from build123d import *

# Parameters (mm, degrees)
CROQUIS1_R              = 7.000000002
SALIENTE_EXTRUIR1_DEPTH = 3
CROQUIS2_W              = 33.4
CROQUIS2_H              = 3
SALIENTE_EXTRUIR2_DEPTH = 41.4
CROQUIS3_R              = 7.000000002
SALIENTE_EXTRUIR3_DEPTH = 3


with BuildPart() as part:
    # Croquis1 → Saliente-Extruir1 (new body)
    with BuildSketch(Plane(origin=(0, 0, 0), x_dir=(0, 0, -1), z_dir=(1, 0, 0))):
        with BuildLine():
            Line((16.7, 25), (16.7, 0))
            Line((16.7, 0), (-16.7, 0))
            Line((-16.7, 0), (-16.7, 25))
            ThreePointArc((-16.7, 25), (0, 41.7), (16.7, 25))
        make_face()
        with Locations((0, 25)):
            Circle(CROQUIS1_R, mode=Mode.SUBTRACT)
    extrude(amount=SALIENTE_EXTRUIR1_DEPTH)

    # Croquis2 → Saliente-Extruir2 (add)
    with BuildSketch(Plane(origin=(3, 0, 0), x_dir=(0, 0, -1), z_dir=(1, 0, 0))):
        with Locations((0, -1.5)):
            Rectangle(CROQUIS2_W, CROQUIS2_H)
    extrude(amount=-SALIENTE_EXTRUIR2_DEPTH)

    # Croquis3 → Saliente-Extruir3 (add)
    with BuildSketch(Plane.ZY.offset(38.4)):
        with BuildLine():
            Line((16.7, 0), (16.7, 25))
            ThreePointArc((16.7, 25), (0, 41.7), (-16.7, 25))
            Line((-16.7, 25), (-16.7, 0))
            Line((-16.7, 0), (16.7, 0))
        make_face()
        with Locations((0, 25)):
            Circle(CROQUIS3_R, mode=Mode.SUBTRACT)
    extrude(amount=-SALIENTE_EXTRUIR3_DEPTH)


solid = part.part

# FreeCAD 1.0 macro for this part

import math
import FreeCAD as App
import Part
import Sketcher
Q = App.Units.Quantity


def add_polygon(sketch, points):
    """Adds a closed chain of lines whose ends are joined by coincident constraints."""
    first, n = sketch.GeometryCount, len(points)
    for a, b in zip(points, points[1:] + points[:1]):
        sketch.addGeometry(Part.LineSegment(App.Vector(*a, 0), App.Vector(*b, 0)), False)
    for i in range(n):
        sketch.addConstraint(Sketcher.Constraint("Coincident", first + i, 2, first + (i + 1) % n, 1))

doc = App.newDocument("Part")
params = doc.addObject("Spreadsheet::Sheet", "Params")
for row, (alias, value) in enumerate([
    ("sketch1_diameter", "14 mm"),
    ("sketch1_radius", "16.7 mm"),
    ("sketch1_width", "25 mm"),
    ("pad1_length", "3 mm"),
    ("sketch2_width", "3 mm"),
    ("sketch2_height", "33.4 mm"),
    ("pad2_length", "41.4 mm"),
    ("sketch3_diameter", "14 mm"),
    ("sketch3_radius", "16.7 mm"),
    ("sketch3_width", "25 mm"),
    ("pad3_length", "3 mm"),
], start=1):
    params.set(f"A{row}", alias)
    params.set(f"B{row}", "=" + value)
    params.setAlias(f"B{row}", alias)

body = doc.addObject("PartDesign::Body", "Body")

# Sketch on YZ plane
sketch1 = body.newObject("Sketcher::SketchObject", "Sketch")
sketch1.AttachmentSupport = (doc.getObject("YZ_Plane"), [""])
sketch1.MapMode = "FlatFace"
sketch1.addGeometry(Part.LineSegment(App.Vector(0, -16.7, 0), App.Vector(25, -16.7, 0)), False)
sketch1.addGeometry(Part.ArcOfCircle(Part.Circle(App.Vector(25, 0, 0), App.Vector(0, 0, 1), 16.7), math.radians(-90), math.radians(90)), False)
sketch1.addGeometry(Part.LineSegment(App.Vector(25, 16.7, 0), App.Vector(0, 16.7, 0)), False)
sketch1.addGeometry(Part.LineSegment(App.Vector(0, 16.7, 0), App.Vector(0, -16.7, 0)), False)
sketch1.addGeometry(Part.Circle(App.Vector(25, 0, 0), App.Vector(0, 0, 1), 7), False)
sketch1.addConstraint(Sketcher.Constraint("Tangent", 0, 2, 1, 1))
sketch1.addConstraint(Sketcher.Constraint("Tangent", 1, 2, 2, 1))
sketch1.addConstraint(Sketcher.Constraint("Coincident", 2, 2, 3, 1))
sketch1.addConstraint(Sketcher.Constraint("Coincident", 3, 2, 0, 1))
sketch1.addConstraint(Sketcher.Constraint("Horizontal", 0))
sketch1.addConstraint(Sketcher.Constraint("Horizontal", 2))
sketch1.addConstraint(Sketcher.Constraint("Vertical", 3))
sketch1.addConstraint(Sketcher.Constraint("Coincident", 4, 3, 1, 3))
sketch1.addConstraint(Sketcher.Constraint("Symmetric", 2, 2, 3, 2, -1, 1))
sketch1.addConstraint(Sketcher.Constraint("Diameter", 4, Q("14 mm")))
sketch1.addConstraint(Sketcher.Constraint("Radius", 1, Q("16.7 mm")))
sketch1.addConstraint(Sketcher.Constraint("DistanceX", 0, 1, 0, 2, Q("25 mm")))
sketch1.setExpression("Constraints[9]", "Params.sketch1_diameter")
sketch1.setExpression("Constraints[10]", "Params.sketch1_radius")
sketch1.setExpression("Constraints[11]", "Params.sketch1_width")
pad1 = body.newObject("PartDesign::Pad", "Pad")
pad1.Profile = sketch1
pad1.setExpression("Length", "Params.pad1_length")

# Sketch on YZ plane
sketch2 = body.newObject("Sketcher::SketchObject", "Sketch001")
sketch2.AttachmentSupport = (doc.getObject("YZ_Plane"), [""])
sketch2.MapMode = "FlatFace"
sketch2.AttachmentOffset = App.Placement(App.Vector(0, 0, 3), App.Rotation())
add_polygon(sketch2, [(0, 16.7), (-3, 16.7), (-3, -16.7), (0, -16.7)])  # lines 0-3
sketch2.addConstraint(Sketcher.Constraint("Horizontal", 0))
sketch2.addConstraint(Sketcher.Constraint("Vertical", 1))
sketch2.addConstraint(Sketcher.Constraint("Horizontal", 2))
sketch2.addConstraint(Sketcher.Constraint("Vertical", 3))
sketch2.addConstraint(Sketcher.Constraint("Symmetric", 2, 2, 3, 2, -1, 1))
sketch2.addConstraint(Sketcher.Constraint("DistanceX", 0, 2, 0, 1, Q("3 mm")))
sketch2.addConstraint(Sketcher.Constraint("DistanceY", 1, 2, 1, 1, Q("33.4 mm")))
sketch2.setExpression("Constraints[9]", "Params.sketch2_width")
sketch2.setExpression("Constraints[10]", "Params.sketch2_height")
pad2 = body.newObject("PartDesign::Pad", "Pad001")
pad2.Profile = sketch2
pad2.setExpression("Length", "Params.pad2_length")
pad2.Reversed = True

# Sketch on YZ plane
sketch3 = body.newObject("Sketcher::SketchObject", "Sketch002")
sketch3.AttachmentSupport = (doc.getObject("YZ_Plane"), [""])
sketch3.MapMode = "FlatFace"
sketch3.AttachmentOffset = App.Placement(App.Vector(0, 0, -38.4), App.Rotation())
sketch3.addGeometry(Part.LineSegment(App.Vector(0, 16.7, 0), App.Vector(25, 16.7, 0)), False)
sketch3.addGeometry(Part.ArcOfCircle(Part.Circle(App.Vector(25, 0, 0), App.Vector(0, 0, 1), 16.7), math.radians(-90), math.radians(90)), False)
sketch3.addGeometry(Part.LineSegment(App.Vector(25, -16.7, 0), App.Vector(0, -16.7, 0)), False)
sketch3.addGeometry(Part.LineSegment(App.Vector(0, -16.7, 0), App.Vector(0, 16.7, 0)), False)
sketch3.addGeometry(Part.Circle(App.Vector(25, 0, 0), App.Vector(0, 0, 1), 7), False)
sketch3.addConstraint(Sketcher.Constraint("Tangent", 0, 2, 1, 2))
sketch3.addConstraint(Sketcher.Constraint("Tangent", 1, 1, 2, 1))
sketch3.addConstraint(Sketcher.Constraint("Coincident", 2, 2, 3, 1))
sketch3.addConstraint(Sketcher.Constraint("Coincident", 3, 2, 0, 1))
sketch3.addConstraint(Sketcher.Constraint("Horizontal", 0))
sketch3.addConstraint(Sketcher.Constraint("Horizontal", 2))
sketch3.addConstraint(Sketcher.Constraint("Vertical", 3))
sketch3.addConstraint(Sketcher.Constraint("Coincident", 4, 3, 1, 3))
sketch3.addConstraint(Sketcher.Constraint("Symmetric", 2, 2, 3, 2, -1, 1))
sketch3.addConstraint(Sketcher.Constraint("Diameter", 4, Q("14 mm")))
sketch3.addConstraint(Sketcher.Constraint("Radius", 1, Q("16.7 mm")))
sketch3.addConstraint(Sketcher.Constraint("DistanceX", 0, 1, 0, 2, Q("25 mm")))
sketch3.setExpression("Constraints[9]", "Params.sketch3_diameter")
sketch3.setExpression("Constraints[10]", "Params.sketch3_radius")
sketch3.setExpression("Constraints[11]", "Params.sketch3_width")
pad3 = body.newObject("PartDesign::Pad", "Pad002")
pad3.Profile = sketch3
pad3.setExpression("Length", "Params.pad3_length")

doc.recompute()
